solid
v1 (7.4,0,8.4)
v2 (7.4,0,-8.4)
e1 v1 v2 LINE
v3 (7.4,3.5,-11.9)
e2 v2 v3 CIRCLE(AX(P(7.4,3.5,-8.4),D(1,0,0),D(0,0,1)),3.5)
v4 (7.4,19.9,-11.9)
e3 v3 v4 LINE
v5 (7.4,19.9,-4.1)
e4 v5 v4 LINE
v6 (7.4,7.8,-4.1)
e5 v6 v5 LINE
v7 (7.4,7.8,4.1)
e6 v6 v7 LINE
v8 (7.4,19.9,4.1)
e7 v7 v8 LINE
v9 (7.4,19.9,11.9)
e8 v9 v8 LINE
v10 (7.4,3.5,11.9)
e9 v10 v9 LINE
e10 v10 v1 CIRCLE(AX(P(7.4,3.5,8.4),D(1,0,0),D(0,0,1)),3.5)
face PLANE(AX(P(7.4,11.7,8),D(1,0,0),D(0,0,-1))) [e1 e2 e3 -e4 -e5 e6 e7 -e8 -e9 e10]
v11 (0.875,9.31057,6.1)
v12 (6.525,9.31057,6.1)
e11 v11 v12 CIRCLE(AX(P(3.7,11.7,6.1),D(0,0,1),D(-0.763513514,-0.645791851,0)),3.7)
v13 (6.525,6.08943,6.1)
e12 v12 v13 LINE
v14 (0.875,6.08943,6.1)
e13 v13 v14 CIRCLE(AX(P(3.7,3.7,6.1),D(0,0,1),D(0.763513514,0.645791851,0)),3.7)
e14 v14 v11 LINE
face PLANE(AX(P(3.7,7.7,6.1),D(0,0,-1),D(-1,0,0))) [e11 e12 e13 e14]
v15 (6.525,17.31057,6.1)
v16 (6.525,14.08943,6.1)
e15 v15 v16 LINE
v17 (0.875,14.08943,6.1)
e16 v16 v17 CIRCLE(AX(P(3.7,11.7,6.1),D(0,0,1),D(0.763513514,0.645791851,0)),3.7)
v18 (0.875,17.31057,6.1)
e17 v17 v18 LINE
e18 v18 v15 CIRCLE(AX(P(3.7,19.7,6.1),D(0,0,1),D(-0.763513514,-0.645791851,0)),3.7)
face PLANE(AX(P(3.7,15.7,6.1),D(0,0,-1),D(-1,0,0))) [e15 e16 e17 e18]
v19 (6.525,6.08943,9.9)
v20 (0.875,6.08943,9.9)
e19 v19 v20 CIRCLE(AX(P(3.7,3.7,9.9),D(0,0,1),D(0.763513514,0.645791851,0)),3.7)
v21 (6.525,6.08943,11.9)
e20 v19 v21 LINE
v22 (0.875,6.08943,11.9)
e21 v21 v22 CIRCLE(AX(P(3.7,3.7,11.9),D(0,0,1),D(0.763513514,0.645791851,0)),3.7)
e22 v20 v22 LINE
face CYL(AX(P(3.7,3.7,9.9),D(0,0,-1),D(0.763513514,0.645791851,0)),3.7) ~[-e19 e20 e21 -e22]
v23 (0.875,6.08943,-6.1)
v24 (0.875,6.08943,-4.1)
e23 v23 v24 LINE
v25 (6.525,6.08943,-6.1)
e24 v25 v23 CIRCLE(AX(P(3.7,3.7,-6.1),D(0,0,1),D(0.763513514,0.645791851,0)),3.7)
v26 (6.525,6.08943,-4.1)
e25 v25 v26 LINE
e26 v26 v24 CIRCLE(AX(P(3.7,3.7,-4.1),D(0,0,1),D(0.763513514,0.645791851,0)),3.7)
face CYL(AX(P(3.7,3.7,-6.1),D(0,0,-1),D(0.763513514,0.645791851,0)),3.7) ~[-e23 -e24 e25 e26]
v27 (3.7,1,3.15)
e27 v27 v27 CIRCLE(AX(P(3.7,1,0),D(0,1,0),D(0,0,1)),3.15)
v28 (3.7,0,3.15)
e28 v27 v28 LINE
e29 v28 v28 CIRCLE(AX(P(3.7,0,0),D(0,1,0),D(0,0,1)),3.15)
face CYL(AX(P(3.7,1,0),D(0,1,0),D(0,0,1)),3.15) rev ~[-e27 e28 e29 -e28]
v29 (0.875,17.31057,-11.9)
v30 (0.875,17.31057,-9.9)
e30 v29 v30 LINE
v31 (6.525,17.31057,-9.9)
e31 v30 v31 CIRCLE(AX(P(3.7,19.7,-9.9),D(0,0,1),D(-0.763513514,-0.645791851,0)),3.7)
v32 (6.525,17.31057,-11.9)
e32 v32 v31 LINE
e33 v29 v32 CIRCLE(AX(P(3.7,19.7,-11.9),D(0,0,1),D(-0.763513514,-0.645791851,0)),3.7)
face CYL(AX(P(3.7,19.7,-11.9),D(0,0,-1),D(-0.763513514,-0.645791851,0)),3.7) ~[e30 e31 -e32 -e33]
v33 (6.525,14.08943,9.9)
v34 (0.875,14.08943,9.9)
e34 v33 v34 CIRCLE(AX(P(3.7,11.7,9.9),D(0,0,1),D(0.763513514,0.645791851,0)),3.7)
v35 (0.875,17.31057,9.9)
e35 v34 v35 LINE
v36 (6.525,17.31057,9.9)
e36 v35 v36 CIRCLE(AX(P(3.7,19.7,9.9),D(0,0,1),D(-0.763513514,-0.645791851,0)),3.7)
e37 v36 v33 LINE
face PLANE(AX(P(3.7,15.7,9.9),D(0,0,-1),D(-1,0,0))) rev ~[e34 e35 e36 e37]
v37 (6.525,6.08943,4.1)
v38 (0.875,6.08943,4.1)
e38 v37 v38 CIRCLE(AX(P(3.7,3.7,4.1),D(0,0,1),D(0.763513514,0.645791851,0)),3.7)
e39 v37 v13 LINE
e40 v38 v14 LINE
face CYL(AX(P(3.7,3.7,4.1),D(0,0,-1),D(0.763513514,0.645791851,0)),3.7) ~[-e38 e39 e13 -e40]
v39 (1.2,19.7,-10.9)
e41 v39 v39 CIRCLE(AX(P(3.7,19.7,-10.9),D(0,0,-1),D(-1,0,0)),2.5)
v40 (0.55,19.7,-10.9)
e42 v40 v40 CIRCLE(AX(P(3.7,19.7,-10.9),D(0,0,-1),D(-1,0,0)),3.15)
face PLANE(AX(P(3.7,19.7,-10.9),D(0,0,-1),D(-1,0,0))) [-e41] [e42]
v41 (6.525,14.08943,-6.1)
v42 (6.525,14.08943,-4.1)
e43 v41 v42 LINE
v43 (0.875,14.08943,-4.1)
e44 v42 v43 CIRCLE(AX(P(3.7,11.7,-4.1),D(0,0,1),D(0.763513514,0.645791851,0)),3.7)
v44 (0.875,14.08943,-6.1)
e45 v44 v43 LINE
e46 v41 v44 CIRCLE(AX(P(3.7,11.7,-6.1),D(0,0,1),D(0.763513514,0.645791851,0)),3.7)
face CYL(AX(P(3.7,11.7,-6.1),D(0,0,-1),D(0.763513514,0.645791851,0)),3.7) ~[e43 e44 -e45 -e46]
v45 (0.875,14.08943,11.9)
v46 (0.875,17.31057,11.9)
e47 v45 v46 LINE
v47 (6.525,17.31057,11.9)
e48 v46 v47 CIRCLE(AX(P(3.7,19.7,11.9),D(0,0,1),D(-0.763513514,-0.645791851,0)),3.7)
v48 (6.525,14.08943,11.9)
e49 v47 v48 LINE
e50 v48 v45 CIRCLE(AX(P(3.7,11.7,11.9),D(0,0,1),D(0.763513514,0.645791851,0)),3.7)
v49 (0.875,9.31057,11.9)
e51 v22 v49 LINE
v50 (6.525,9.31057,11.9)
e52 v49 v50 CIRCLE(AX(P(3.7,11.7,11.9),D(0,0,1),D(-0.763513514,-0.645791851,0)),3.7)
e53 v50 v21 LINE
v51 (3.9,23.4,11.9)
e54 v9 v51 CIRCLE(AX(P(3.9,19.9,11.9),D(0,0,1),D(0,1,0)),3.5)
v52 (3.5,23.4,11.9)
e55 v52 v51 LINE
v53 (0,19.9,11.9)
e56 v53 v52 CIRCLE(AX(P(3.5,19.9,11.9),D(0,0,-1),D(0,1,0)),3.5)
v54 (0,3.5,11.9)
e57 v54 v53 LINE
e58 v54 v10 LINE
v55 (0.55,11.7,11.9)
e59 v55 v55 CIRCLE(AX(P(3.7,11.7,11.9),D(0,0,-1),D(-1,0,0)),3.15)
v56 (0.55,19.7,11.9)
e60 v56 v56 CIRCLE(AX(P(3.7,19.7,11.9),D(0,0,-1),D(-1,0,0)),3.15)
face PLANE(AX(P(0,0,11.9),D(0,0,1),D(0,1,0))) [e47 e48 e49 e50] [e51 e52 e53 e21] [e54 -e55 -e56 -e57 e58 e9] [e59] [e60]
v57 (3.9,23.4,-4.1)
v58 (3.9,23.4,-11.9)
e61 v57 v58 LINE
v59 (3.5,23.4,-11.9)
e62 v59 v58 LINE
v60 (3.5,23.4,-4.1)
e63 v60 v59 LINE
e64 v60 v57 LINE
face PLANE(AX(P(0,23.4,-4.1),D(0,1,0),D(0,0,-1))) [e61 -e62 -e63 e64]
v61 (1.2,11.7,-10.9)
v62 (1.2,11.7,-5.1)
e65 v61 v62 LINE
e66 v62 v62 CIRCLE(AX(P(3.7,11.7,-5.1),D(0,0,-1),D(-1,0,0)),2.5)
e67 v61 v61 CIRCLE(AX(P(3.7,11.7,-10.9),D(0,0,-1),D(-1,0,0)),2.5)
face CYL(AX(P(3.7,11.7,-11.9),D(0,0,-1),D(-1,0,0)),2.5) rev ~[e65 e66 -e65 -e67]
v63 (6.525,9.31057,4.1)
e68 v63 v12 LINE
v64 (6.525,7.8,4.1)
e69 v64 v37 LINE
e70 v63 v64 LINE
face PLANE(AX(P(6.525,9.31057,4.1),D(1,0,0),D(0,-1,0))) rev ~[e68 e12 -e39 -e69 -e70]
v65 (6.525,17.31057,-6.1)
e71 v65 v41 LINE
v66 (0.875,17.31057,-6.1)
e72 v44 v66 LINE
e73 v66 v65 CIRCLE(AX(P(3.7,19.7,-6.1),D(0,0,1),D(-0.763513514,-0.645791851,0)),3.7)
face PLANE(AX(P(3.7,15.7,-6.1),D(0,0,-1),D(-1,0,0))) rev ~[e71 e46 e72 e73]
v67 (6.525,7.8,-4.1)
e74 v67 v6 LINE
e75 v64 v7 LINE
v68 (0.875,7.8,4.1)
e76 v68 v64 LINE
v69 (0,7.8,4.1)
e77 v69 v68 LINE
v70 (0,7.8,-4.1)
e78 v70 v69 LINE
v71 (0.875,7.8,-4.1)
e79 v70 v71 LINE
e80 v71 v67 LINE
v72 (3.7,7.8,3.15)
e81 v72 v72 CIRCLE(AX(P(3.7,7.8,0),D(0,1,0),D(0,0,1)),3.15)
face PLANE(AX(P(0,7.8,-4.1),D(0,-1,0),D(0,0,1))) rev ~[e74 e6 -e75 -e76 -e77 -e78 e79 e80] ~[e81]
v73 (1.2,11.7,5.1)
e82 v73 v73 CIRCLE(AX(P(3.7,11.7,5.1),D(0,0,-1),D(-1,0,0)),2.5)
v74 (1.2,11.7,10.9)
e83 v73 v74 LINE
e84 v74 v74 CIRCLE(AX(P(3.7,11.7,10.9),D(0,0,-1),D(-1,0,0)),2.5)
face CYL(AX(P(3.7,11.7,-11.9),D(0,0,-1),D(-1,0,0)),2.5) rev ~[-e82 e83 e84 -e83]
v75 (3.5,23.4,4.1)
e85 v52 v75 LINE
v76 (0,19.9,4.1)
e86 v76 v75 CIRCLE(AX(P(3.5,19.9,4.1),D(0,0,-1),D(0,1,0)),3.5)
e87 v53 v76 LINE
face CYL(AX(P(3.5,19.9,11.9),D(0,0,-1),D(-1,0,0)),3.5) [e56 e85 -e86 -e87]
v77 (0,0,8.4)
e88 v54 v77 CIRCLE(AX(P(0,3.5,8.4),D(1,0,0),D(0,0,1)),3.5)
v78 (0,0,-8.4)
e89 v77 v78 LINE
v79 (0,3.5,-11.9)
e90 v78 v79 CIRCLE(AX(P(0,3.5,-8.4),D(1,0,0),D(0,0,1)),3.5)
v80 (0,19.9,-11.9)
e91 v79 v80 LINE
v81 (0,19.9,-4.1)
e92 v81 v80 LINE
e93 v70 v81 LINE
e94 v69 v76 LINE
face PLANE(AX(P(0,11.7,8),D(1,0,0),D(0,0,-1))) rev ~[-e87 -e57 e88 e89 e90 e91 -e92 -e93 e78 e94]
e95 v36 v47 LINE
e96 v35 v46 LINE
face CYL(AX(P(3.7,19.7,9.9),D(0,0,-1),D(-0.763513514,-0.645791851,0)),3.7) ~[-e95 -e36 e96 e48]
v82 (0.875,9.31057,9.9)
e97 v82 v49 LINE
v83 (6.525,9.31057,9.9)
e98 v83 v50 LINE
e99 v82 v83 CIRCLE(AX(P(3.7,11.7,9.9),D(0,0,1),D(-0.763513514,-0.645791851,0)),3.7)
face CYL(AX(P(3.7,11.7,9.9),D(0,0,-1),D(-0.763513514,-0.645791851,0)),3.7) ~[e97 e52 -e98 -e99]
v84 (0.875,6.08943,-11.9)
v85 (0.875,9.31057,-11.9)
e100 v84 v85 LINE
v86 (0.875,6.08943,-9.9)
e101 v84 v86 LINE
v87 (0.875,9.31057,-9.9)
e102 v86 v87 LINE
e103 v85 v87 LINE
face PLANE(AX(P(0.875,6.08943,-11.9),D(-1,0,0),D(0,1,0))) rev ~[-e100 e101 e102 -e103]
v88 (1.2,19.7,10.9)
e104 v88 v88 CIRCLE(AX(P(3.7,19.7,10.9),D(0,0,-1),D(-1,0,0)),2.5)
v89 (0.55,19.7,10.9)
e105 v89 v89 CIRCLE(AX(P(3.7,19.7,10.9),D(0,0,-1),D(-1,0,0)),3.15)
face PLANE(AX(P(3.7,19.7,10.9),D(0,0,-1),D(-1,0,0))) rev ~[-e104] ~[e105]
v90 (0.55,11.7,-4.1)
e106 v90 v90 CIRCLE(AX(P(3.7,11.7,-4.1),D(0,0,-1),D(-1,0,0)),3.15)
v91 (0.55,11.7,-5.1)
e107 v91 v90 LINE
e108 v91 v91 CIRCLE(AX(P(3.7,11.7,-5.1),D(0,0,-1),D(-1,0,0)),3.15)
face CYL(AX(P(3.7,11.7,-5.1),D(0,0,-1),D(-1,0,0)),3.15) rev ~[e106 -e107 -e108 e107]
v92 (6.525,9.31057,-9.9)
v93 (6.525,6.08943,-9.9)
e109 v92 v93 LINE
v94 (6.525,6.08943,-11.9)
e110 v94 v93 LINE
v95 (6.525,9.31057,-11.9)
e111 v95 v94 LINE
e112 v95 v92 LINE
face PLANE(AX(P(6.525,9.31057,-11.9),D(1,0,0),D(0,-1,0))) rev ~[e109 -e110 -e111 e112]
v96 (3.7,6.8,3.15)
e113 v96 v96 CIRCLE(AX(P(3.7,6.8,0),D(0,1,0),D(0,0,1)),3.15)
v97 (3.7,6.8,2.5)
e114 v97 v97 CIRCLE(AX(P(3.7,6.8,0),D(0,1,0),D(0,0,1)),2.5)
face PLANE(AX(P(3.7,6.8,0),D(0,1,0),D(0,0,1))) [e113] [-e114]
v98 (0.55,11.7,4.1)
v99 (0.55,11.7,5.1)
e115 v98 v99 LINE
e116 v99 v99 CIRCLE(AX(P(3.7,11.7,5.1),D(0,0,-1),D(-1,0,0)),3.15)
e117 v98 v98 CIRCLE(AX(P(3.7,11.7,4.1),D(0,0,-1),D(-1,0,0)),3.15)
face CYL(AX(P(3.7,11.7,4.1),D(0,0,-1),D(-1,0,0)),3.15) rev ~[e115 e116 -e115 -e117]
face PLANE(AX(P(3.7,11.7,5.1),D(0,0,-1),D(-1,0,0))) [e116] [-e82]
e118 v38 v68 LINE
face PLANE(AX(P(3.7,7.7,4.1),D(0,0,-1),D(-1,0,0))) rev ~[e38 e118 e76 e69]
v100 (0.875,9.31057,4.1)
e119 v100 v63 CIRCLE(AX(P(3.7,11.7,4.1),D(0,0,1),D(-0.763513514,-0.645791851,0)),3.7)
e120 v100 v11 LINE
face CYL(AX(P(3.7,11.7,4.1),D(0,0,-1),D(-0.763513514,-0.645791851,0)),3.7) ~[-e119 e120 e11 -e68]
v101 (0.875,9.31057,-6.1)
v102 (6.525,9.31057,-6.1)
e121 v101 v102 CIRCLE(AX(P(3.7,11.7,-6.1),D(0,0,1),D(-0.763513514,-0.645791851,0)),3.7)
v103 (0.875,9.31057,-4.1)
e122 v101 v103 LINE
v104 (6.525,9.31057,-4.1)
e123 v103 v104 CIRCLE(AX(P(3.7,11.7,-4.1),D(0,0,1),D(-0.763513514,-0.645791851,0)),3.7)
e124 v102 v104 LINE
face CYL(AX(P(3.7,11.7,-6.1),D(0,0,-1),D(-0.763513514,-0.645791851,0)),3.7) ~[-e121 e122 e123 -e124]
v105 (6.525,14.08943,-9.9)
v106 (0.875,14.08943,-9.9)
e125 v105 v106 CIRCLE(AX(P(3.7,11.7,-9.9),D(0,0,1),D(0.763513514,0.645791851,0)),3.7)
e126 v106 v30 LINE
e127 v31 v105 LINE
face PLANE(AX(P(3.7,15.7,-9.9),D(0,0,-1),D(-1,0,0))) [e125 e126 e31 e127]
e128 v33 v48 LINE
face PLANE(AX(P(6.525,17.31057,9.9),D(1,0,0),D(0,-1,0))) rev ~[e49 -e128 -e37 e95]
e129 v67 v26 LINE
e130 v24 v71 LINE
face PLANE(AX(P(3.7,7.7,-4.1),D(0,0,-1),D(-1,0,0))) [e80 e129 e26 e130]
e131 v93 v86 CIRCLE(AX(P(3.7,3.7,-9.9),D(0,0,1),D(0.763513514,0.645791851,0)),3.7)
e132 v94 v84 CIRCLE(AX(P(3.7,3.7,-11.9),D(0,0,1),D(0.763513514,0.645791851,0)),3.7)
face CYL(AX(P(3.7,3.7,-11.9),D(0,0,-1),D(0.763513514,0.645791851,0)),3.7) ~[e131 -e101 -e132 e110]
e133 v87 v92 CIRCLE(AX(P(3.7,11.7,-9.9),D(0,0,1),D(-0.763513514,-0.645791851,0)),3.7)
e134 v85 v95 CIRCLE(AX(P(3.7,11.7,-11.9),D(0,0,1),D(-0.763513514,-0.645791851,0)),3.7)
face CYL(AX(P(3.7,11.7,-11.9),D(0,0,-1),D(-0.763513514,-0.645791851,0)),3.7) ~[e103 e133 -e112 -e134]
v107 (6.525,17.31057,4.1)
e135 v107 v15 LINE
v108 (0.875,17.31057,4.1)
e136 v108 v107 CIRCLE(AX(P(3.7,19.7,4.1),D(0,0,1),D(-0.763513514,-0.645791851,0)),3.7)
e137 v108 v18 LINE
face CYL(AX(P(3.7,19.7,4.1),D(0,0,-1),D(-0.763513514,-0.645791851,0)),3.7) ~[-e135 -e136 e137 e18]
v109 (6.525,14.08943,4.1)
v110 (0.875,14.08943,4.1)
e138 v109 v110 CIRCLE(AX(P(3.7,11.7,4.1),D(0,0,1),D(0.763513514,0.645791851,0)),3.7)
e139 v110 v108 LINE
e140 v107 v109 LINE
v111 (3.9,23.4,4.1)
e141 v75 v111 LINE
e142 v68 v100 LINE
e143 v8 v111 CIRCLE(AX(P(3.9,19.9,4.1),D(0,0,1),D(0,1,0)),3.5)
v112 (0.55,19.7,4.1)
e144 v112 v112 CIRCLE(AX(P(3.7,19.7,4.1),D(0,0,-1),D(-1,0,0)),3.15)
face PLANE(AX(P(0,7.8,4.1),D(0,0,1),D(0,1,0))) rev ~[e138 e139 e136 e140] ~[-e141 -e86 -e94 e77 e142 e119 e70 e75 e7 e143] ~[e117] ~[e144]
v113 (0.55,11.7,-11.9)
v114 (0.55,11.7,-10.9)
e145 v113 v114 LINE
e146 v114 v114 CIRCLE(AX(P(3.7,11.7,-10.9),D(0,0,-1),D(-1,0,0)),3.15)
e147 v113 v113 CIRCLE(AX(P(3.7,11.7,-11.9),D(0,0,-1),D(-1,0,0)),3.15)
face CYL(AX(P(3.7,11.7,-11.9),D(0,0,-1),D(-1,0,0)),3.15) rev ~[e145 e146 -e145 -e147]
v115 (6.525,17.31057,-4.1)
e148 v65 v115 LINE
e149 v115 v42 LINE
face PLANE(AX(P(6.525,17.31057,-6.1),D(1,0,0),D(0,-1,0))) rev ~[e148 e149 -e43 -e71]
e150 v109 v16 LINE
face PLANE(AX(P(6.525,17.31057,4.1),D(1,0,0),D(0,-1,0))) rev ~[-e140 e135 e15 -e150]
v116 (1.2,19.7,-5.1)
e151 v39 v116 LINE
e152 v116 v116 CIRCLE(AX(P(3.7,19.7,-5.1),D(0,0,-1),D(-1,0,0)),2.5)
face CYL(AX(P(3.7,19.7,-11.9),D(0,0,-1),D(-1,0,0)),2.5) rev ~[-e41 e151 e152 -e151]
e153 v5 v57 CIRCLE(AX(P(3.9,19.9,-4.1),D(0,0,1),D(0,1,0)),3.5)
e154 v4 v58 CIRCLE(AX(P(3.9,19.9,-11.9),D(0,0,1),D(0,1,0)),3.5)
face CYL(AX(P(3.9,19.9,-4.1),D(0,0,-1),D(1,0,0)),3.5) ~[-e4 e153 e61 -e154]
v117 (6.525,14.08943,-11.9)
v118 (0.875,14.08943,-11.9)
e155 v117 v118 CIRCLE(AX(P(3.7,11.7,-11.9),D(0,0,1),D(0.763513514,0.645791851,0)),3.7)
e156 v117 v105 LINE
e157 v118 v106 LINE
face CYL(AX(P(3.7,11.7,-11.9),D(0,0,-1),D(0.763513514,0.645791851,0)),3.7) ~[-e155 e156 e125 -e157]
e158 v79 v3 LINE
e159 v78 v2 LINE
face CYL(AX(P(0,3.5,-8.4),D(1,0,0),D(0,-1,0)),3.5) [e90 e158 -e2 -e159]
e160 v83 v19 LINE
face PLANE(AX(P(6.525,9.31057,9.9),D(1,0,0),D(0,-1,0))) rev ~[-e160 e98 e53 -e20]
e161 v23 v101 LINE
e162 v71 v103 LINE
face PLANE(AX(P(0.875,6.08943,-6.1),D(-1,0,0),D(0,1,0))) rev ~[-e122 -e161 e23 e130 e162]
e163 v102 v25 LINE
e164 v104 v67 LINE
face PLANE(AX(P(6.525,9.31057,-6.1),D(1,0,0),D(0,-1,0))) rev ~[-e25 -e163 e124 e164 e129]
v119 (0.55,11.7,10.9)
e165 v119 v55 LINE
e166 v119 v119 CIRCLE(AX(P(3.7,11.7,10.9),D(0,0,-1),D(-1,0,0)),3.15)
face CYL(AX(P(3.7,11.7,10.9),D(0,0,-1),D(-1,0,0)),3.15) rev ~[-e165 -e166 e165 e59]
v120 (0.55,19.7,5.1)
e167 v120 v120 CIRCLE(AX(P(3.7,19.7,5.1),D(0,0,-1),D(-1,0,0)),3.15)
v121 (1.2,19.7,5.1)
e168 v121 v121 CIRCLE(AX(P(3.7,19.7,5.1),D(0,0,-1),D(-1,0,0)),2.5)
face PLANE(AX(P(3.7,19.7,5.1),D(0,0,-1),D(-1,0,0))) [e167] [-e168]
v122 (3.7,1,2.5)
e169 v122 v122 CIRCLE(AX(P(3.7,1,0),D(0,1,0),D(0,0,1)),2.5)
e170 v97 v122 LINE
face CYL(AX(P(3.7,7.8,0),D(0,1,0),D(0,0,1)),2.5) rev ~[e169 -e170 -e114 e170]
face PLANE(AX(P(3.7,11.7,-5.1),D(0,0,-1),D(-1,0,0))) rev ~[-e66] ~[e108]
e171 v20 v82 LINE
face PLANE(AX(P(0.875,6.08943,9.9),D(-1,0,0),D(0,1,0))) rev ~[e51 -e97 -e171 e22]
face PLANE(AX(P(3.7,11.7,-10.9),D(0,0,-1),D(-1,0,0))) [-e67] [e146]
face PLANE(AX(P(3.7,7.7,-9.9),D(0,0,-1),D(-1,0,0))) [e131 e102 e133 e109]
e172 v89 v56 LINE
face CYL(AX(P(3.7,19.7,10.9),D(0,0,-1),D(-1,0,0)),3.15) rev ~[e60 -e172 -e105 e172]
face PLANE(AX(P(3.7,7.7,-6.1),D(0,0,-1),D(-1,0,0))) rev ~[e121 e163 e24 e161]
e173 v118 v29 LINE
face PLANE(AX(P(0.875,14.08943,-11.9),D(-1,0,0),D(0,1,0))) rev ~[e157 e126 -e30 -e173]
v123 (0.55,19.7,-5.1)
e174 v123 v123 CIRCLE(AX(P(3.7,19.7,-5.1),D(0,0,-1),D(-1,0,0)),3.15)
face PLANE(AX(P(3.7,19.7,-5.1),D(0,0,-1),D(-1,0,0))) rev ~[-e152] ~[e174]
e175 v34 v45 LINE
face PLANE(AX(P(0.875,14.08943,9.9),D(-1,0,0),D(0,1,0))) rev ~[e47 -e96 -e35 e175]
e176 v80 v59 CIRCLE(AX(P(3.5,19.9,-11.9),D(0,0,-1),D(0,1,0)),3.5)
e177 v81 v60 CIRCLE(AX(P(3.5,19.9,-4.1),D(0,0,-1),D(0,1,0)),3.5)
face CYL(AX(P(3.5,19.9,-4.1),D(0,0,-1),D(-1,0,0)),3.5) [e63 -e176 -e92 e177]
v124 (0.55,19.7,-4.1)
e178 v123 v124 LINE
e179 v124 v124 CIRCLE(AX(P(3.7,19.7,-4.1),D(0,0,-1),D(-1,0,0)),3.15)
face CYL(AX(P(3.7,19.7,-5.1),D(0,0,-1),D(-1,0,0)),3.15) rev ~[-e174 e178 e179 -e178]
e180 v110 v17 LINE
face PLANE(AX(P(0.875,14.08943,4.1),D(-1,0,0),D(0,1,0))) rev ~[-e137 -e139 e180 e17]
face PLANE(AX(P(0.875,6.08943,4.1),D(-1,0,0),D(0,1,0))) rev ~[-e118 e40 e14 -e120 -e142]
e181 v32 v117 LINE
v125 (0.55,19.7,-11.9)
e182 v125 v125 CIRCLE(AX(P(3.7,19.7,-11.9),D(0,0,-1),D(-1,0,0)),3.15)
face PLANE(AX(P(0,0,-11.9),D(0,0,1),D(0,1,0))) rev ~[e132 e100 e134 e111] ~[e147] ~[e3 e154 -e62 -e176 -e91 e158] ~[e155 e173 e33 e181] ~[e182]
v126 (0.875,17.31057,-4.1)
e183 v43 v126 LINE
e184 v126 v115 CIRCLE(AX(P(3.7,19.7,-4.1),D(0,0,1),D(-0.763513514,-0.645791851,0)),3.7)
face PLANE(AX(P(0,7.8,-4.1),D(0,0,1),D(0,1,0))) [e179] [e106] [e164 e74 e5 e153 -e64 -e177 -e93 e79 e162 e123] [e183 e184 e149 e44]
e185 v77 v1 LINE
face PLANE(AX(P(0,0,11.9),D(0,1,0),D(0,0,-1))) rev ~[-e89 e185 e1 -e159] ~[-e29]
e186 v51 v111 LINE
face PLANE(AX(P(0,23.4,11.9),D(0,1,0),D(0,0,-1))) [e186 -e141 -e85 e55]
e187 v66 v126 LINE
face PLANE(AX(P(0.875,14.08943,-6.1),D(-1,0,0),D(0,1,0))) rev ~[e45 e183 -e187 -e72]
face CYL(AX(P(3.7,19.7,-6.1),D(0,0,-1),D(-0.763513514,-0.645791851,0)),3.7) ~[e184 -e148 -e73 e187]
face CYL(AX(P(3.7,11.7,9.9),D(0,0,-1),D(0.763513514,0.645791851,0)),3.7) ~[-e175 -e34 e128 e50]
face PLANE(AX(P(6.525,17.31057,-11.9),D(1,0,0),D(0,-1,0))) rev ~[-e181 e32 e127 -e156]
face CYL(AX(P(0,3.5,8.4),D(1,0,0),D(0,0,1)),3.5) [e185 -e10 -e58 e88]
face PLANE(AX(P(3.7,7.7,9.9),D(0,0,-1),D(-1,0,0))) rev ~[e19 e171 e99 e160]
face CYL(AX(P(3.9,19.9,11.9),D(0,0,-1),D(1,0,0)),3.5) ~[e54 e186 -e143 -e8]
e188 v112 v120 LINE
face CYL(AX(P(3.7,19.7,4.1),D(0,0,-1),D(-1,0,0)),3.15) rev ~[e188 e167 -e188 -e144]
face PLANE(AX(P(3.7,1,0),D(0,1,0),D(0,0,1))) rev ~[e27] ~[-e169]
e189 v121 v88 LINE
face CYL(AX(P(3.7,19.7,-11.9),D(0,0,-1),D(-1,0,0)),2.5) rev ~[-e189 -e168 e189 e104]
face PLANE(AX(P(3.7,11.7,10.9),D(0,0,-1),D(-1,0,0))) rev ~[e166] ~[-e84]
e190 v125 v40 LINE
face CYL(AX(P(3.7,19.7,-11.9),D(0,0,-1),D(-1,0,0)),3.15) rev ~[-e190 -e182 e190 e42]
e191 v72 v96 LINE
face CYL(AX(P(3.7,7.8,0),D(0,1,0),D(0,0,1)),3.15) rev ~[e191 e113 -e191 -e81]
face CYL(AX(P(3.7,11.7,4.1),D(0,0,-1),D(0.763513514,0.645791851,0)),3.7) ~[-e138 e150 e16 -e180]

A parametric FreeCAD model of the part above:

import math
import FreeCAD as App
import Part
import Sketcher
from FreeCAD import Vector
Q = App.Units.Quantity


def edges_at(feature, points):
    """Names of the edges that pass closest to the given points."""
    edges = feature.Shape.Edges
    near = lambda p: min(range(len(edges)), key=lambda i: edges[i].distToShape(Part.Vertex(*p))[0])
    return sorted({f"Edge{near(p) + 1}" for p in points})

doc = App.newDocument("Part")
params = doc.addObject("Spreadsheet::Sheet", "Params")
for row, (alias, value) in enumerate([
    ("sketch1_width", "23.4 mm"),
    ("sketch1_width2", "15.6 mm"),
    ("sketch1_height", "23.8 mm"),
    ("sketch1_height2", "7.8 mm"),
    ("pad1_length", "7.4 mm"),
    ("sketch2_diameter", "5 mm"),
    ("sketch3_diameter", "5 mm"),
    ("sketch3_diameter2", "6.3 mm"),
    ("pocket2_length", "1 mm"),
    ("sketch4_diameter", "5 mm"),
    ("sketch4_diameter2", "6.3 mm"),
    ("pocket3_length", "1 mm"),
    ("sketch5_diameter", "5 mm"),
    ("sketch6_diameter", "5 mm"),
    ("sketch6_diameter2", "6.3 mm"),
    ("pocket5_length", "1 mm"),
    ("sketch7_diameter", "5 mm"),
    ("sketch7_diameter2", "6.3 mm"),
    ("pocket6_length", "1 mm"),
    ("sketch8_diameter", "5 mm"),
    ("sketch8_diameter2", "6.3 mm"),
    ("pocket7_length", "1 mm"),
    ("sketch9_diameter", "5 mm"),
    ("sketch9_diameter2", "6.3 mm"),
    ("pocket8_length", "1 mm"),
    ("linearpattern_pitch", "8 mm"),
    ("sketch10_radius", "3.7 mm"),
    ("pocket9_length", "2 mm"),
    ("sketch11_radius", "3.7 mm"),
    ("pocket10_length", "2 mm"),
    ("sketch12_radius", "3.7 mm"),
    ("pocket11_length", "2 mm"),
    ("sketch13_radius", "3.7 mm"),
    ("pocket12_length", "2 mm"),
    ("linearpattern2_pitch", "8 mm"),
    ("fillet_radius", "3.5 mm"),
], start=1):
    params.set(f"A{row}", alias)
    params.set(f"B{row}", "=" + value)
    params.setAlias(f"B{row}", alias)

body = doc.addObject("PartDesign::Body", "Body")

# Sketch on YZ plane
sketch1 = body.newObject("Sketcher::SketchObject", "Sketch")
sketch1.AttachmentSupport = (doc.getObject("YZ_Plane"), [""])
sketch1.MapMode = "FlatFace"
sketch1.addGeometry([
    Part.LineSegment(Vector(23, 12, 0), Vector(0, 12, 0)),  # 0
    Part.LineSegment(Vector(0, 12, 0), Vector(0, -12, 0)),  # 1
    Part.LineSegment(Vector(0, -12, 0), Vector(23, -12, 0)),  # 2
    Part.LineSegment(Vector(23, -12, 0), Vector(23, -4, 0)),  # 3
    Part.LineSegment(Vector(23, -4, 0), Vector(8, -4, 0)),  # 4
    Part.LineSegment(Vector(8, -4, 0), Vector(8, 4, 0)),  # 5
    Part.LineSegment(Vector(8, 4, 0), Vector(23, 4, 0)),  # 6
    Part.LineSegment(Vector(23, 4, 0), Vector(23, 12, 0)),  # 7
], False)
sketch1.addConstraint([
    Sketcher.Constraint("Coincident", 0, 2, 1, 1),
    Sketcher.Constraint("Coincident", 1, 2, 2, 1),
    Sketcher.Constraint("Coincident", 2, 2, 3, 1),
    Sketcher.Constraint("Coincident", 3, 2, 4, 1),
    Sketcher.Constraint("Coincident", 4, 2, 5, 1),
    Sketcher.Constraint("Coincident", 5, 2, 6, 1),
    Sketcher.Constraint("Coincident", 6, 2, 7, 1),
    Sketcher.Constraint("Coincident", 7, 2, 0, 1),
    Sketcher.Constraint("Horizontal", 0),
    Sketcher.Constraint("Vertical", 1),
    Sketcher.Constraint("Horizontal", 2),
    Sketcher.Constraint("Vertical", 3),
    Sketcher.Constraint("Horizontal", 4),
    Sketcher.Constraint("Vertical", 5),
    Sketcher.Constraint("Horizontal", 6),
    Sketcher.Constraint("Vertical", 7),
    Sketcher.Constraint("Symmetric", 0, 2, 1, 2, -1, 1),
    Sketcher.Constraint("Symmetric", 3, 2, 6, 2, -1),
    Sketcher.Constraint("DistanceX", 0, 2, 0, 1, Q("23.4 mm")),
    Sketcher.Constraint("DistanceX", 4, 2, 4, 1, Q("15.6 mm")),
    Sketcher.Constraint("DistanceY", 1, 2, 1, 1, Q("23.8 mm")),
    Sketcher.Constraint("DistanceY", 3, 1, 3, 2, Q("7.8 mm")),
])
sketch1.setExpression("Constraints[18]", "Params.sketch1_width")
sketch1.setExpression("Constraints[19]", "Params.sketch1_width2")
sketch1.setExpression("Constraints[20]", "Params.sketch1_height")
sketch1.setExpression("Constraints[21]", "Params.sketch1_height2")
pad1 = body.newObject("PartDesign::Pad", "Pad")
pad1.Profile = sketch1
pad1.setExpression("Length", "Params.pad1_length")

# Sketch on XZ plane
sketch2 = body.newObject("Sketcher::SketchObject", "Sketch001")
sketch2.AttachmentSupport = (doc.getObject("XZ_Plane"), [""])
sketch2.MapMode = "FlatFace"
sketch2.AttachmentOffset = App.Placement(Vector(0, 0, -7.8), App.Rotation())
sketch2.addGeometry(Part.Circle(Vector(3.7, 0, 0), Vector(0, 0, 1), 2.5), False)
sketch2.addConstraint([
    Sketcher.Constraint("PointOnObject", 0, 3, -1),
    Sketcher.Constraint("Diameter", 0, Q("5 mm")),
    Sketcher.Constraint("DistanceX", -1, 1, 0, 3, Q("3.7 mm")),
])
sketch2.setExpression("Constraints[1]", "Params.sketch2_diameter")
pocket1 = body.newObject("PartDesign::Pocket", "Pocket")
pocket1.Profile = sketch2
pocket1.Type = "UpToFirst"
pocket1.Reversed = True

# Sketch on XZ plane
sketch3 = body.newObject("Sketcher::SketchObject", "Sketch002")
sketch3.AttachmentSupport = (doc.getObject("XZ_Plane"), [""])
sketch3.MapMode = "FlatFace"
sketch3.AttachmentOffset = App.Placement(Vector(0, 0, -7.8), App.Rotation())
sketch3.addGeometry([
    Part.Circle(Vector(3.7, 0, 0), Vector(0, 0, 1), 3.1),
    Part.Circle(Vector(3.7, 0, 0), Vector(0, 0, 1), 2.5),
], False)
sketch3.addConstraint([
    Sketcher.Constraint("Coincident", 1, 3, 0, 3),
    Sketcher.Constraint("PointOnObject", 0, 3, -1),
    Sketcher.Constraint("Diameter", 1, Q("5 mm")),
    Sketcher.Constraint("Diameter", 0, Q("6.3 mm")),
    Sketcher.Constraint("DistanceX", -1, 1, 0, 3, Q("3.7 mm")),
])
sketch3.setExpression("Constraints[2]", "Params.sketch3_diameter")
sketch3.setExpression("Constraints[3]", "Params.sketch3_diameter2")
pocket2 = body.newObject("PartDesign::Pocket", "Pocket001")
pocket2.Profile = sketch3
pocket2.setExpression("Length", "Params.pocket2_length")
pocket2.Reversed = True

# Sketch on XZ plane
sketch4 = body.newObject("Sketcher::SketchObject", "Sketch003")
sketch4.AttachmentSupport = (doc.getObject("XZ_Plane"), [""])
sketch4.MapMode = "FlatFace"
sketch4.AttachmentOffset = App.Placement(Vector(0, 0, -1), App.Rotation())
sketch4.addGeometry([
    Part.Circle(Vector(3.7, 0, 0), Vector(0, 0, 1), 3.1),
    Part.Circle(Vector(3.7, 0, 0), Vector(0, 0, 1), 2.5),
], False)
sketch4.addConstraint([
    Sketcher.Constraint("Coincident", 1, 3, 0, 3),
    Sketcher.Constraint("PointOnObject", 0, 3, -1),
    Sketcher.Constraint("Diameter", 1, Q("5 mm")),
    Sketcher.Constraint("Diameter", 0, Q("6.3 mm")),
    Sketcher.Constraint("DistanceX", -1, 1, 0, 3, Q("3.7 mm")),
])
sketch4.setExpression("Constraints[2]", "Params.sketch4_diameter")
sketch4.setExpression("Constraints[3]", "Params.sketch4_diameter2")
pocket3 = body.newObject("PartDesign::Pocket", "Pocket002")
pocket3.Profile = sketch4
pocket3.setExpression("Length", "Params.pocket3_length")
pocket3.Reversed = True

# Sketch on XY plane
sketch5 = body.newObject("Sketcher::SketchObject", "Sketch004")
sketch5.AttachmentSupport = (doc.getObject("XY_Plane"), [""])
sketch5.MapMode = "FlatFace"
sketch5.AttachmentOffset = App.Placement(Vector(0, 0, -11.9), App.Rotation())
sketch5.addGeometry(Part.Circle(Vector(3.7, 11.7, 0), Vector(0, 0, 1), 2.5), False)
sketch5.addConstraint([
    Sketcher.Constraint("Diameter", 0, Q("5 mm")),
    Sketcher.Constraint("DistanceX", -1, 1, 0, 3, Q("3.7 mm")),
    Sketcher.Constraint("DistanceY", -1, 1, 0, 3, Q("11.7 mm")),
])
sketch5.setExpression("Constraints[0]", "Params.sketch5_diameter")
pocket4 = body.newObject("PartDesign::Pocket", "Pocket003")
pocket4.Profile = sketch5
pocket4.Type = "ThroughAll"
pocket4.Reversed = True

# Sketch on XY plane
sketch6 = body.newObject("Sketcher::SketchObject", "Sketch005")
sketch6.AttachmentSupport = (doc.getObject("XY_Plane"), [""])
sketch6.MapMode = "FlatFace"
sketch6.AttachmentOffset = App.Placement(Vector(0, 0, -11.9), App.Rotation())
sketch6.addGeometry([
    Part.Circle(Vector(3.7, 11.7, 0), Vector(0, 0, 1), 3.1),
    Part.Circle(Vector(3.7, 11.7, 0), Vector(0, 0, 1), 2.5),
], False)
sketch6.addConstraint([
    Sketcher.Constraint("Coincident", 1, 3, 0, 3),
    Sketcher.Constraint("Diameter", 1, Q("5 mm")),
    Sketcher.Constraint("Diameter", 0, Q("6.3 mm")),
    Sketcher.Constraint("DistanceX", -1, 1, 0, 3, Q("3.7 mm")),
    Sketcher.Constraint("DistanceY", -1, 1, 0, 3, Q("11.7 mm")),
])
sketch6.setExpression("Constraints[1]", "Params.sketch6_diameter")
sketch6.setExpression("Constraints[2]", "Params.sketch6_diameter2")
pocket5 = body.newObject("PartDesign::Pocket", "Pocket004")
pocket5.Profile = sketch6
pocket5.setExpression("Length", "Params.pocket5_length")
pocket5.Reversed = True

# Sketch on XY plane
sketch7 = body.newObject("Sketcher::SketchObject", "Sketch006")
sketch7.AttachmentSupport = (doc.getObject("XY_Plane"), [""])
sketch7.MapMode = "FlatFace"
sketch7.AttachmentOffset = App.Placement(Vector(0, 0, -5.1), App.Rotation())
sketch7.addGeometry([
    Part.Circle(Vector(3.7, 11.7, 0), Vector(0, 0, 1), 3.1),
    Part.Circle(Vector(3.7, 11.7, 0), Vector(0, 0, 1), 2.5),
], False)
sketch7.addConstraint([
    Sketcher.Constraint("Coincident", 1, 3, 0, 3),
    Sketcher.Constraint("Diameter", 1, Q("5 mm")),
    Sketcher.Constraint("Diameter", 0, Q("6.3 mm")),
    Sketcher.Constraint("DistanceX", -1, 1, 0, 3, Q("3.7 mm")),
    Sketcher.Constraint("DistanceY", -1, 1, 0, 3, Q("11.7 mm")),
])
sketch7.setExpression("Constraints[1]", "Params.sketch7_diameter")
sketch7.setExpression("Constraints[2]", "Params.sketch7_diameter2")
pocket6 = body.newObject("PartDesign::Pocket", "Pocket005")
pocket6.Profile = sketch7
pocket6.setExpression("Length", "Params.pocket6_length")
pocket6.Reversed = True

# Sketch on XY plane
sketch8 = body.newObject("Sketcher::SketchObject", "Sketch007")
sketch8.AttachmentSupport = (doc.getObject("XY_Plane"), [""])
sketch8.MapMode = "FlatFace"
sketch8.AttachmentOffset = App.Placement(Vector(0, 0, 4.1), App.Rotation())
sketch8.addGeometry([
    Part.Circle(Vector(3.7, 11.7, 0), Vector(0, 0, 1), 3.1),
    Part.Circle(Vector(3.7, 11.7, 0), Vector(0, 0, 1), 2.5),
], False)
sketch8.addConstraint([
    Sketcher.Constraint("Coincident", 1, 3, 0, 3),
    Sketcher.Constraint("Diameter", 1, Q("5 mm")),
    Sketcher.Constraint("Diameter", 0, Q("6.3 mm")),
    Sketcher.Constraint("DistanceX", -1, 1, 0, 3, Q("3.7 mm")),
    Sketcher.Constraint("DistanceY", -1, 1, 0, 3, Q("11.7 mm")),
])
sketch8.setExpression("Constraints[1]", "Params.sketch8_diameter")
sketch8.setExpression("Constraints[2]", "Params.sketch8_diameter2")
pocket7 = body.newObject("PartDesign::Pocket", "Pocket006")
pocket7.Profile = sketch8
pocket7.setExpression("Length", "Params.pocket7_length")
pocket7.Reversed = True

# Sketch on XY plane
sketch9 = body.newObject("Sketcher::SketchObject", "Sketch008")
sketch9.AttachmentSupport = (doc.getObject("XY_Plane"), [""])
sketch9.MapMode = "FlatFace"
sketch9.AttachmentOffset = App.Placement(Vector(0, 0, 10.9), App.Rotation())
sketch9.addGeometry([
    Part.Circle(Vector(3.7, 11.7, 0), Vector(0, 0, 1), 3.1),
    Part.Circle(Vector(3.7, 11.7, 0), Vector(0, 0, 1), 2.5),
], False)
sketch9.addConstraint([
    Sketcher.Constraint("Coincident", 1, 3, 0, 3),
    Sketcher.Constraint("Diameter", 1, Q("5 mm")),
    Sketcher.Constraint("Diameter", 0, Q("6.3 mm")),
    Sketcher.Constraint("DistanceX", -1, 1, 0, 3, Q("3.7 mm")),
    Sketcher.Constraint("DistanceY", -1, 1, 0, 3, Q("11.7 mm")),
])
sketch9.setExpression("Constraints[1]", "Params.sketch9_diameter")
sketch9.setExpression("Constraints[2]", "Params.sketch9_diameter2")
pocket8 = body.newObject("PartDesign::Pocket", "Pocket007")
pocket8.Profile = sketch9
pocket8.setExpression("Length", "Params.pocket8_length")
pocket8.Reversed = True
doc.recompute()

linearpattern = body.newObject("PartDesign::LinearPattern", "LinearPattern")
linearpattern.Originals = [pocket4, pocket5, pocket6, pocket7, pocket8]
linearpattern.Direction = (doc.getObject("Y_Axis"), [""])
linearpattern.Mode = "offset"
linearpattern.setExpression("Offset", "Params.linearpattern_pitch")
linearpattern.Occurrences = 2
body.Tip = linearpattern

# Sketch on XY plane
sketch10 = body.newObject("Sketcher::SketchObject", "Sketch009")
sketch10.AttachmentSupport = (doc.getObject("XY_Plane"), [""])
sketch10.MapMode = "FlatFace"
sketch10.AttachmentOffset = App.Placement(Vector(0, 0, -11.9), App.Rotation())
sketch10.addGeometry([
    Part.ArcOfCircle(Part.Circle(Vector(3.7, 11.7, 0), Vector(0, 0, 1), 3.7), math.radians(40), math.radians(140)),
    Part.LineSegment(Vector(0.9, 14.1, 0), Vector(0.9, 17.3, 0)),
    Part.ArcOfCircle(Part.Circle(Vector(3.7, 19.7, 0), Vector(0, 0, 1), 3.7), math.radians(-140), math.radians(-40)),
    Part.LineSegment(Vector(6.5, 17.3, 0), Vector(6.5, 14.1, 0)),
], False)
sketch10.addConstraint([
    Sketcher.Constraint("Coincident", 0, 2, 1, 1),
    Sketcher.Constraint("Coincident", 1, 2, 2, 1),
    Sketcher.Constraint("Coincident", 2, 2, 3, 1),
    Sketcher.Constraint("Coincident", 3, 2, 0, 1),
    Sketcher.Constraint("Vertical", 1),
    Sketcher.Constraint("Vertical", 3),
    Sketcher.Constraint("Equal", 0, 2),
    Sketcher.Constraint("Horizontal", 1, 2, 2, 2),
    Sketcher.Constraint("Horizontal", 0, 2, 3, 2),
    Sketcher.Constraint("Radius", 0, Q("3.7 mm")),
    Sketcher.Constraint("DistanceY", 0, 3, 2, 3, Q("8 mm")),
    Sketcher.Constraint("DistanceX", -1, 1, 0, 3, Q("3.7 mm")),
    Sketcher.Constraint("DistanceY", -1, 1, 0, 3, Q("11.7 mm")),
    Sketcher.Constraint("DistanceX", 1, 2, 2, 2, Q("5.65 mm")),
])
sketch10.setExpression("Constraints[9]", "Params.sketch10_radius")
pocket9 = body.newObject("PartDesign::Pocket", "Pocket008")
pocket9.Profile = sketch10
pocket9.setExpression("Length", "Params.pocket9_length")
pocket9.Reversed = True

# Sketch on XY plane
sketch11 = body.newObject("Sketcher::SketchObject", "Sketch010")
sketch11.AttachmentSupport = (doc.getObject("XY_Plane"), [""])
sketch11.MapMode = "FlatFace"
sketch11.AttachmentOffset = App.Placement(Vector(0, 0, -6.1), App.Rotation())
sketch11.addGeometry([
    Part.ArcOfCircle(Part.Circle(Vector(3.7, 11.7, 0), Vector(0, 0, 1), 3.7), math.radians(40), math.radians(140)),
    Part.LineSegment(Vector(0.9, 14.1, 0), Vector(0.9, 17.3, 0)),
    Part.ArcOfCircle(Part.Circle(Vector(3.7, 19.7, 0), Vector(0, 0, 1), 3.7), math.radians(-140), math.radians(-40)),
    Part.LineSegment(Vector(6.5, 17.3, 0), Vector(6.5, 14.1, 0)),
], False)
sketch11.addConstraint([
    Sketcher.Constraint("Coincident", 0, 2, 1, 1),
    Sketcher.Constraint("Coincident", 1, 2, 2, 1),
    Sketcher.Constraint("Coincident", 2, 2, 3, 1),
    Sketcher.Constraint("Coincident", 3, 2, 0, 1),
    Sketcher.Constraint("Vertical", 1),
    Sketcher.Constraint("Vertical", 3),
    Sketcher.Constraint("Equal", 0, 2),
    Sketcher.Constraint("Horizontal", 1, 2, 2, 2),
    Sketcher.Constraint("Horizontal", 0, 2, 3, 2),
    Sketcher.Constraint("Radius", 0, Q("3.7 mm")),
    Sketcher.Constraint("DistanceY", 0, 3, 2, 3, Q("8 mm")),
    Sketcher.Constraint("DistanceX", -1, 1, 0, 3, Q("3.7 mm")),
    Sketcher.Constraint("DistanceY", -1, 1, 0, 3, Q("11.7 mm")),
    Sketcher.Constraint("DistanceX", 1, 2, 2, 2, Q("5.65 mm")),
])
sketch11.setExpression("Constraints[9]", "Params.sketch11_radius")
pocket10 = body.newObject("PartDesign::Pocket", "Pocket009")
pocket10.Profile = sketch11
pocket10.setExpression("Length", "Params.pocket10_length")
pocket10.Reversed = True

# Sketch on XY plane
sketch12 = body.newObject("Sketcher::SketchObject", "Sketch011")
sketch12.AttachmentSupport = (doc.getObject("XY_Plane"), [""])
sketch12.MapMode = "FlatFace"
sketch12.AttachmentOffset = App.Placement(Vector(0, 0, 4.1), App.Rotation())
sketch12.addGeometry([
    Part.ArcOfCircle(Part.Circle(Vector(3.7, 11.7, 0), Vector(0, 0, 1), 3.7), math.radians(40), math.radians(140)),
    Part.LineSegment(Vector(0.9, 14.1, 0), Vector(0.9, 17.3, 0)),
    Part.ArcOfCircle(Part.Circle(Vector(3.7, 19.7, 0), Vector(0, 0, 1), 3.7), math.radians(-140), math.radians(-40)),
    Part.LineSegment(Vector(6.5, 17.3, 0), Vector(6.5, 14.1, 0)),
], False)
sketch12.addConstraint([
    Sketcher.Constraint("Coincident", 0, 2, 1, 1),
    Sketcher.Constraint("Coincident", 1, 2, 2, 1),
    Sketcher.Constraint("Coincident", 2, 2, 3, 1),
    Sketcher.Constraint("Coincident", 3, 2, 0, 1),
    Sketcher.Constraint("Vertical", 1),
    Sketcher.Constraint("Vertical", 3),
    Sketcher.Constraint("Equal", 0, 2),
    Sketcher.Constraint("Horizontal", 1, 2, 2, 2),
    Sketcher.Constraint("Horizontal", 0, 2, 3, 2),
    Sketcher.Constraint("Radius", 0, Q("3.7 mm")),
    Sketcher.Constraint("DistanceY", 0, 3, 2, 3, Q("8 mm")),
    Sketcher.Constraint("DistanceX", -1, 1, 0, 3, Q("3.7 mm")),
    Sketcher.Constraint("DistanceY", -1, 1, 0, 3, Q("11.7 mm")),
    Sketcher.Constraint("DistanceX", 1, 2, 2, 2, Q("5.65 mm")),
])
sketch12.setExpression("Constraints[9]", "Params.sketch12_radius")
pocket11 = body.newObject("PartDesign::Pocket", "Pocket010")
pocket11.Profile = sketch12
pocket11.setExpression("Length", "Params.pocket11_length")
pocket11.Reversed = True

# Sketch on XY plane
sketch13 = body.newObject("Sketcher::SketchObject", "Sketch012")
sketch13.AttachmentSupport = (doc.getObject("XY_Plane"), [""])
sketch13.MapMode = "FlatFace"
sketch13.AttachmentOffset = App.Placement(Vector(0, 0, 9.9), App.Rotation())
sketch13.addGeometry([
    Part.ArcOfCircle(Part.Circle(Vector(3.7, 11.7, 0), Vector(0, 0, 1), 3.7), math.radians(40), math.radians(140)),
    Part.LineSegment(Vector(0.9, 14.1, 0), Vector(0.9, 17.3, 0)),
    Part.ArcOfCircle(Part.Circle(Vector(3.7, 19.7, 0), Vector(0, 0, 1), 3.7), math.radians(-140), math.radians(-40)),
    Part.LineSegment(Vector(6.5, 17.3, 0), Vector(6.5, 14.1, 0)),
], False)
sketch13.addConstraint([
    Sketcher.Constraint("Coincident", 0, 2, 1, 1),
    Sketcher.Constraint("Coincident", 1, 2, 2, 1),
    Sketcher.Constraint("Coincident", 2, 2, 3, 1),
    Sketcher.Constraint("Coincident", 3, 2, 0, 1),
    Sketcher.Constraint("Vertical", 1),
    Sketcher.Constraint("Vertical", 3),
    Sketcher.Constraint("Equal", 0, 2),
    Sketcher.Constraint("Horizontal", 1, 2, 2, 2),
    Sketcher.Constraint("Horizontal", 0, 2, 3, 2),
    Sketcher.Constraint("Radius", 0, Q("3.7 mm")),
    Sketcher.Constraint("DistanceY", 0, 3, 2, 3, Q("8 mm")),
    Sketcher.Constraint("DistanceX", -1, 1, 0, 3, Q("3.7 mm")),
    Sketcher.Constraint("DistanceY", -1, 1, 0, 3, Q("11.7 mm")),
    Sketcher.Constraint("DistanceX", 1, 2, 2, 2, Q("5.65 mm")),
])
sketch13.setExpression("Constraints[9]", "Params.sketch13_radius")
pocket12 = body.newObject("PartDesign::Pocket", "Pocket011")
pocket12.Profile = sketch13
pocket12.setExpression("Length", "Params.pocket12_length")
pocket12.Reversed = True
doc.recompute()

linearpattern2 = body.newObject("PartDesign::LinearPattern", "LinearPattern001")
linearpattern2.Originals = [pocket9, pocket10, pocket11, pocket12]
linearpattern2.Direction = (doc.getObject("Y_Axis"), [""])
linearpattern2.Mode = "offset"
linearpattern2.setExpression("Offset", "Params.linearpattern2_pitch")
linearpattern2.Occurrences = 2
linearpattern2.Reversed = True
body.Tip = linearpattern2
doc.recompute()

fillet = body.newObject("PartDesign::Fillet", "Fillet")
fillet.Base = (linearpattern2, edges_at(linearpattern2, [
    (7.4, 23.4, -8),
    (0, 23.4, 8),
    (0, 23.4, -8),
    (3.7, 0, -11.9),
    (3.7, 0, 11.9),
    (7.4, 23.4, 8),
]))
fillet.setExpression("Radius", "Params.fillet_radius")

doc.recompute()
